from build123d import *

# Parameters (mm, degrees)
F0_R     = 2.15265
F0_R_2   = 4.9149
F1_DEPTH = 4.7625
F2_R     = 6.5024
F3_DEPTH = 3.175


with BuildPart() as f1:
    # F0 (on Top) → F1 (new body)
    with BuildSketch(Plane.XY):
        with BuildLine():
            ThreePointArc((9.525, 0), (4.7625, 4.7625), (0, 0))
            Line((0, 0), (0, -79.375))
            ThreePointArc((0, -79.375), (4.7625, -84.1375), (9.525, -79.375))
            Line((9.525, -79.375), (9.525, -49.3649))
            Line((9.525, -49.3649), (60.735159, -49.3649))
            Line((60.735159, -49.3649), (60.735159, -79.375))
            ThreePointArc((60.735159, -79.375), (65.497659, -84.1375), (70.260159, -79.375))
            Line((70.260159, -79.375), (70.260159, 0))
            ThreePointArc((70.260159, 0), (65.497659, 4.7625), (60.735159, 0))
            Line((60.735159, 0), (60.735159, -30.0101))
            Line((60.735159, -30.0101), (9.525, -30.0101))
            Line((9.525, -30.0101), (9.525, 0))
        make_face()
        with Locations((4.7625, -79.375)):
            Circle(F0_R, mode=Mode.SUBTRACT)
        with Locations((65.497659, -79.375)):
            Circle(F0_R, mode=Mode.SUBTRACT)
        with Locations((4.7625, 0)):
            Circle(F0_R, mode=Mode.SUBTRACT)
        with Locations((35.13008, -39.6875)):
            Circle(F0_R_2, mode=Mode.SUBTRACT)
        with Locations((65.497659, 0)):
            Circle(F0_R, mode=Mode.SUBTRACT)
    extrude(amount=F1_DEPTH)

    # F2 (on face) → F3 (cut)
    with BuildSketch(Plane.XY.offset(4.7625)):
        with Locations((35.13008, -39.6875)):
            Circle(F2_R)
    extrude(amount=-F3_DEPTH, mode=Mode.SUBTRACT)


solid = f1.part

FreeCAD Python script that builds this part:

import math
import FreeCAD as App
import Part
import Sketcher
Q = App.Units.Quantity

doc = App.newDocument("Part")
body = doc.addObject("PartDesign::Body", "Body")

# Sketch on XY plane
sketch1 = body.newObject("Sketcher::SketchObject", "Sketch")
sketch1.AttachmentSupport = (doc.getObject("XY_Plane"), [""])
sketch1.MapMode = "FlatFace"
sketch1.addGeometry([
    Part.ArcOfCircle(Part.Circle(App.Vector(4.8, 0, 0), App.Vector(0, 0, 1), 4.8), math.radians(0), math.radians(180)),  # 0
    Part.LineSegment(App.Vector(0, 0, 0), App.Vector(0, -79.4, 0)),  # 1
    Part.ArcOfCircle(Part.Circle(App.Vector(4.8, -79.4, 0), App.Vector(0, 0, 1), 4.8), math.radians(180), math.radians(360)),  # 2
    Part.LineSegment(App.Vector(9.5, -79.4, 0), App.Vector(9.5, -49.4, 0)),  # 3
    Part.LineSegment(App.Vector(9.5, -49.4, 0), App.Vector(60.7, -49.4, 0)),  # 4
    Part.LineSegment(App.Vector(60.7, -49.4, 0), App.Vector(60.7, -79.4, 0)),  # 5
    Part.ArcOfCircle(Part.Circle(App.Vector(65.5, -79.4, 0), App.Vector(0, 0, 1), 4.8), math.radians(180), math.radians(360)),  # 6
    Part.LineSegment(App.Vector(70.3, -79.4, 0), App.Vector(70.3, 0, 0)),  # 7
    Part.ArcOfCircle(Part.Circle(App.Vector(65.5, 0, 0), App.Vector(0, 0, 1), 4.8), math.radians(0), math.radians(180)),  # 8
    Part.LineSegment(App.Vector(60.7, 0, 0), App.Vector(60.7, -30, 0)),  # 9
    Part.LineSegment(App.Vector(60.7, -30, 0), App.Vector(9.5, -30, 0)),  # 10
    Part.LineSegment(App.Vector(9.5, -30, 0), App.Vector(9.5, 0, 0)),  # 11
    Part.Circle(App.Vector(4.8, -79.4, 0), App.Vector(0, 0, 1), 2.2),  # 12
    Part.Circle(App.Vector(65.5, -79.4, 0), App.Vector(0, 0, 1), 2.2),  # 13
    Part.Circle(App.Vector(4.8, 0, 0), App.Vector(0, 0, 1), 2.2),  # 14
    Part.Circle(App.Vector(35.1, -39.7, 0), App.Vector(0, 0, 1), 4.9),  # 15
    Part.Circle(App.Vector(65.5, 0, 0), App.Vector(0, 0, 1), 2.2),  # 16
], False)
sketch1.addConstraint([
    Sketcher.Constraint("Tangent", 0, 2, 1, 1),
    Sketcher.Constraint("Tangent", 1, 2, 2, 1),
    Sketcher.Constraint("Tangent", 2, 2, 3, 1),
    Sketcher.Constraint("Coincident", 3, 2, 4, 1),
    Sketcher.Constraint("Coincident", 4, 2, 5, 1),
    Sketcher.Constraint("Tangent", 5, 2, 6, 1),
    Sketcher.Constraint("Tangent", 6, 2, 7, 1),
    Sketcher.Constraint("Tangent", 7, 2, 8, 1),
    Sketcher.Constraint("Tangent", 8, 2, 9, 1),
    Sketcher.Constraint("Coincident", 9, 2, 10, 1),
    Sketcher.Constraint("Coincident", 10, 2, 11, 1),
    Sketcher.Constraint("Tangent", 11, 2, 0, 1),
    Sketcher.Constraint("Vertical", 1),
    Sketcher.Constraint("Vertical", 3),
    Sketcher.Constraint("Horizontal", 4),
    Sketcher.Constraint("Vertical", 5),
    Sketcher.Constraint("Vertical", 7),
    Sketcher.Constraint("Vertical", 9),
    Sketcher.Constraint("Horizontal", 10),
    Sketcher.Constraint("Vertical", 11),
    Sketcher.Constraint("Coincident", 0, 2, -1, 1),
    Sketcher.Constraint("Coincident", 12, 3, 2, 3),
    Sketcher.Constraint("Coincident", 13, 3, 6, 3),
    Sketcher.Constraint("Coincident", 14, 3, 0, 3),
    Sketcher.Constraint("Coincident", 16, 3, 8, 3),
    Sketcher.Constraint("Equal", 0, 2),
    Sketcher.Constraint("Equal", 2, 6),
    Sketcher.Constraint("Equal", 6, 8),
    Sketcher.Constraint("Equal", 12, 13),
    Sketcher.Constraint("Equal", 13, 14),
    Sketcher.Constraint("Equal", 14, 16),
    Sketcher.Constraint("PointOnObject", 8, 3, -1),
    Sketcher.Constraint("Horizontal", 2, 3, 6, 3),
    Sketcher.Constraint("Equal", 5, 9),
    Sketcher.Constraint("Diameter", 15, Q("0.387 in")),
    Sketcher.Constraint("Radius", 0, Q("0.1875 in")),
    Sketcher.Constraint("Diameter", 12, Q("0.1695 in")),
    Sketcher.Constraint("DistanceY", 1, 2, 1, 1, Q("3.125 in")),
    Sketcher.Constraint("DistanceY", 3, 1, 3, 2, Q("1.1815 in")),
    Sketcher.Constraint("DistanceY", 15, 3, -1, 1, Q("1.5625 in")),
    Sketcher.Constraint("DistanceX", 4, 1, 4, 2, 51.210159),
    Sketcher.Constraint("DistanceX", -1, 1, 15, 3, 35.13008),
])
pad1 = body.newObject("PartDesign::Pad", "Pad")
pad1.Profile = sketch1
pad1.Length = Q("0.1875 in")

# Sketch on XY plane
sketch2 = body.newObject("Sketcher::SketchObject", "Sketch001")
sketch2.AttachmentSupport = (doc.getObject("XY_Plane"), [""])
sketch2.MapMode = "FlatFace"
sketch2.AttachmentOffset = App.Placement(App.Vector(0, 0, 0.1875 * 25.4), App.Rotation())
sketch2.addGeometry(Part.Circle(App.Vector(35, -40, 0), App.Vector(0, 0, 1), 7), False)
sketch2.addConstraint([
    Sketcher.Constraint("Diameter", 0, Q("0.512 in")),
    Sketcher.Constraint("DistanceY", 0, 3, -1, 1, Q("1.5625 in")),
    Sketcher.Constraint("DistanceX", -1, 1, 0, 3, 35.13008),
])
pocket1 = body.newObject("PartDesign::Pocket", "Pocket")
pocket1.Profile = sketch2
pocket1.Length = Q("0.125 in")

doc.recompute()
